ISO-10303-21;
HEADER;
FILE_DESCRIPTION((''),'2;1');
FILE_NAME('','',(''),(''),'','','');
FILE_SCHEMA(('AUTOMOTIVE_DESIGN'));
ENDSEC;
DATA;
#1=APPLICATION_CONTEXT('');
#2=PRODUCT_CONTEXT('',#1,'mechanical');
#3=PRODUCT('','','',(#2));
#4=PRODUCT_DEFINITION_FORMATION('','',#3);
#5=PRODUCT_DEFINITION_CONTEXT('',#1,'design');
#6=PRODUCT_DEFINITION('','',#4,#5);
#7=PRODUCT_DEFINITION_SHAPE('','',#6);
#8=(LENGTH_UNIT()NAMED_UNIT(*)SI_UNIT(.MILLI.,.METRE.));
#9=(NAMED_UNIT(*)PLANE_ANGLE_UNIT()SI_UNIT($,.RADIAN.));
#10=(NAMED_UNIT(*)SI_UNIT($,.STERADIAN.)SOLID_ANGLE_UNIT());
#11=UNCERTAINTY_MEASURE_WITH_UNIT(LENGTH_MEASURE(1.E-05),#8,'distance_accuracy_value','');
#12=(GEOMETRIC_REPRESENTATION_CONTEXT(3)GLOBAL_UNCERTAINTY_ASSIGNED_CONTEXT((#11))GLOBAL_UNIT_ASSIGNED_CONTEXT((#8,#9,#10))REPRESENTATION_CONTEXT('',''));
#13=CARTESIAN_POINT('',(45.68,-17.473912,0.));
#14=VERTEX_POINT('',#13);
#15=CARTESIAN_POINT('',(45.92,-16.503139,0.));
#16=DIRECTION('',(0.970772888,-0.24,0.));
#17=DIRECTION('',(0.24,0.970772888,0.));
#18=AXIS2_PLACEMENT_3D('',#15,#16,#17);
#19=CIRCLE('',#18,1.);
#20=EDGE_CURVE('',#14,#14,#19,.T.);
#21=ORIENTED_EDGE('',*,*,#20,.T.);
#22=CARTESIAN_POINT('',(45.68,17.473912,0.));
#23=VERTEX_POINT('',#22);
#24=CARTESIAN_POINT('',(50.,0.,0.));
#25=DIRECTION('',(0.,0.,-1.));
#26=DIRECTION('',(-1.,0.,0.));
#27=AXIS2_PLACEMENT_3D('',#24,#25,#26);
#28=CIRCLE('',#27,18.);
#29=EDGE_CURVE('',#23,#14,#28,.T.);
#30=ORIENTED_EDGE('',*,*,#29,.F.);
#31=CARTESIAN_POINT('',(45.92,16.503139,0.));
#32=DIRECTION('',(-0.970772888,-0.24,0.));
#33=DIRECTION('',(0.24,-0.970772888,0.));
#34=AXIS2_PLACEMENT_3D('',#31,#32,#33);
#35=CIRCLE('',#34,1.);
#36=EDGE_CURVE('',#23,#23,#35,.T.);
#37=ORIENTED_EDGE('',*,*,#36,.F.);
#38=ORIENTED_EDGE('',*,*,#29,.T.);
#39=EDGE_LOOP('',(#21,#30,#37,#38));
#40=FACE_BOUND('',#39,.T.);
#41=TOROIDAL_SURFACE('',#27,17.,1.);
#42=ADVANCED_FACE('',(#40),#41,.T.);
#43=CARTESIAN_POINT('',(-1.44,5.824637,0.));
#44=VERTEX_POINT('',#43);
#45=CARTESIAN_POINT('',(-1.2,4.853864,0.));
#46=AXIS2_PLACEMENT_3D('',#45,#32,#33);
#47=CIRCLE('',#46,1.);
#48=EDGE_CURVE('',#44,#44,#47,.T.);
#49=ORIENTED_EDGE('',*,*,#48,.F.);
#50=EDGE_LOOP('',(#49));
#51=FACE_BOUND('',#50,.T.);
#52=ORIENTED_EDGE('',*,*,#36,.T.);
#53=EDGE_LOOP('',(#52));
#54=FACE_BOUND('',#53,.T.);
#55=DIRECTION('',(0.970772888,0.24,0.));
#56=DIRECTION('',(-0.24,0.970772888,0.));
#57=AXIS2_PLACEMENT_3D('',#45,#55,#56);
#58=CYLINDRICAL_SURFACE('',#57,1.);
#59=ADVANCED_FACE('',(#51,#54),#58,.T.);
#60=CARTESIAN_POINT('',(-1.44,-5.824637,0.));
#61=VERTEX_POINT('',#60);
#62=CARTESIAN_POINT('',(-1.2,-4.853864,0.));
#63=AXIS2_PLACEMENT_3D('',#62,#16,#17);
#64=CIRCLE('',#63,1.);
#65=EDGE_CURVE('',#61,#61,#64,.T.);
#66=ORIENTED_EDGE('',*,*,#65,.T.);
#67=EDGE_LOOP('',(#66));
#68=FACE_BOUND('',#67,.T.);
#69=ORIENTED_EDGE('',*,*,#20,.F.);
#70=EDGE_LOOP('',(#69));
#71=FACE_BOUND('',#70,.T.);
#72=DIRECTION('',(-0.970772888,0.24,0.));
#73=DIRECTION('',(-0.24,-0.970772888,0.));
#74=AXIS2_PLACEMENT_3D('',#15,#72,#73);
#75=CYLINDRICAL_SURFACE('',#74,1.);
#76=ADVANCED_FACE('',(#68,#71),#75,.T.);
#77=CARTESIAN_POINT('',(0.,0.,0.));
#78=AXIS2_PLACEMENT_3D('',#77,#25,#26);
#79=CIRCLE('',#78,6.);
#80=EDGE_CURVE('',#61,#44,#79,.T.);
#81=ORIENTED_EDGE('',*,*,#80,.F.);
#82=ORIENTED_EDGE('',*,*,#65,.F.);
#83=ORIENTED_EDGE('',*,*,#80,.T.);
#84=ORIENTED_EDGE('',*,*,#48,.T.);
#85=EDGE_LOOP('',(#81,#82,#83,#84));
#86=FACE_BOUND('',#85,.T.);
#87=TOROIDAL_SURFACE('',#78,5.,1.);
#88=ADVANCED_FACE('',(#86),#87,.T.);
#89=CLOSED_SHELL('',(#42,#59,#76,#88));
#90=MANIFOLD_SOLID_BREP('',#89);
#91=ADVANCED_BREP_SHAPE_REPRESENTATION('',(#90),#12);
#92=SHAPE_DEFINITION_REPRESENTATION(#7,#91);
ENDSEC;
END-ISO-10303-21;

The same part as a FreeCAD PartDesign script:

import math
import FreeCAD as App
import Part
import Sketcher
Q = App.Units.Quantity

doc = App.newDocument("Part")
body = doc.addObject("PartDesign::Body", "Body")

# Sketch on an angled plane
sketch1 = body.newObject("Sketcher::SketchObject", "Sketch")
sketch1.Placement = App.Placement(App.Vector(-1.2, 4.853864, 0), App.Rotation(App.Vector(-0.24, 0.970772888, 0), App.Vector(0, 0, 1), App.Vector(0.970772888, 0.24, 0), "ZXY"))
sketch1.addGeometry(Part.Circle(App.Vector(0, 0, 0), App.Vector(0, 0, 1), 1), False)
sketch1.addConstraint([
    Sketcher.Constraint("Coincident", 0, 3, -1, 1),
    Sketcher.Constraint("Diameter", 0, Q("2 mm")),
])

# Sketch on XY plane
sketch2 = body.newObject("Sketcher::SketchObject", "Sketch001")
sketch2.AttachmentSupport = (doc.getObject("XY_Plane"), [""])
sketch2.MapMode = "FlatFace"
sketch2.addGeometry([
    Part.LineSegment(App.Vector(-1, 5, 0), App.Vector(46, 17, 0)),
    Part.ArcOfCircle(Part.Circle(App.Vector(50, 0, 0), App.Vector(0, 0, 1), 17), math.radians(-104), math.radians(104)),
    Part.LineSegment(App.Vector(46, -17, 0), App.Vector(-1, -5, 0)),
    Part.ArcOfCircle(Part.Circle(App.Vector(0, 0, 0), App.Vector(0, 0, 1), 5), math.radians(104), math.radians(256)),
], False)
sketch2.addConstraint([
    Sketcher.Constraint("Tangent", 0, 2, 1, 2),
    Sketcher.Constraint("Tangent", 1, 1, 2, 1),
    Sketcher.Constraint("Tangent", 2, 2, 3, 2),
    Sketcher.Constraint("Tangent", 3, 1, 0, 1),
    Sketcher.Constraint("Coincident", 3, 3, -1, 1),
    Sketcher.Constraint("PointOnObject", 1, 3, -1),
    Sketcher.Constraint("Radius", 1, Q("17 mm")),
    Sketcher.Constraint("Radius", 3, Q("5 mm")),
    Sketcher.Constraint("DistanceX", -1, 1, 1, 3, Q("50 mm")),
])
doc.recompute()

additivepipe = body.newObject("PartDesign::AdditivePipe", "AdditivePipe")
additivepipe.Profile = sketch1
additivepipe.Spine = (sketch2, ["Edge1", "Edge2", "Edge3", "Edge4"])

doc.recompute()
